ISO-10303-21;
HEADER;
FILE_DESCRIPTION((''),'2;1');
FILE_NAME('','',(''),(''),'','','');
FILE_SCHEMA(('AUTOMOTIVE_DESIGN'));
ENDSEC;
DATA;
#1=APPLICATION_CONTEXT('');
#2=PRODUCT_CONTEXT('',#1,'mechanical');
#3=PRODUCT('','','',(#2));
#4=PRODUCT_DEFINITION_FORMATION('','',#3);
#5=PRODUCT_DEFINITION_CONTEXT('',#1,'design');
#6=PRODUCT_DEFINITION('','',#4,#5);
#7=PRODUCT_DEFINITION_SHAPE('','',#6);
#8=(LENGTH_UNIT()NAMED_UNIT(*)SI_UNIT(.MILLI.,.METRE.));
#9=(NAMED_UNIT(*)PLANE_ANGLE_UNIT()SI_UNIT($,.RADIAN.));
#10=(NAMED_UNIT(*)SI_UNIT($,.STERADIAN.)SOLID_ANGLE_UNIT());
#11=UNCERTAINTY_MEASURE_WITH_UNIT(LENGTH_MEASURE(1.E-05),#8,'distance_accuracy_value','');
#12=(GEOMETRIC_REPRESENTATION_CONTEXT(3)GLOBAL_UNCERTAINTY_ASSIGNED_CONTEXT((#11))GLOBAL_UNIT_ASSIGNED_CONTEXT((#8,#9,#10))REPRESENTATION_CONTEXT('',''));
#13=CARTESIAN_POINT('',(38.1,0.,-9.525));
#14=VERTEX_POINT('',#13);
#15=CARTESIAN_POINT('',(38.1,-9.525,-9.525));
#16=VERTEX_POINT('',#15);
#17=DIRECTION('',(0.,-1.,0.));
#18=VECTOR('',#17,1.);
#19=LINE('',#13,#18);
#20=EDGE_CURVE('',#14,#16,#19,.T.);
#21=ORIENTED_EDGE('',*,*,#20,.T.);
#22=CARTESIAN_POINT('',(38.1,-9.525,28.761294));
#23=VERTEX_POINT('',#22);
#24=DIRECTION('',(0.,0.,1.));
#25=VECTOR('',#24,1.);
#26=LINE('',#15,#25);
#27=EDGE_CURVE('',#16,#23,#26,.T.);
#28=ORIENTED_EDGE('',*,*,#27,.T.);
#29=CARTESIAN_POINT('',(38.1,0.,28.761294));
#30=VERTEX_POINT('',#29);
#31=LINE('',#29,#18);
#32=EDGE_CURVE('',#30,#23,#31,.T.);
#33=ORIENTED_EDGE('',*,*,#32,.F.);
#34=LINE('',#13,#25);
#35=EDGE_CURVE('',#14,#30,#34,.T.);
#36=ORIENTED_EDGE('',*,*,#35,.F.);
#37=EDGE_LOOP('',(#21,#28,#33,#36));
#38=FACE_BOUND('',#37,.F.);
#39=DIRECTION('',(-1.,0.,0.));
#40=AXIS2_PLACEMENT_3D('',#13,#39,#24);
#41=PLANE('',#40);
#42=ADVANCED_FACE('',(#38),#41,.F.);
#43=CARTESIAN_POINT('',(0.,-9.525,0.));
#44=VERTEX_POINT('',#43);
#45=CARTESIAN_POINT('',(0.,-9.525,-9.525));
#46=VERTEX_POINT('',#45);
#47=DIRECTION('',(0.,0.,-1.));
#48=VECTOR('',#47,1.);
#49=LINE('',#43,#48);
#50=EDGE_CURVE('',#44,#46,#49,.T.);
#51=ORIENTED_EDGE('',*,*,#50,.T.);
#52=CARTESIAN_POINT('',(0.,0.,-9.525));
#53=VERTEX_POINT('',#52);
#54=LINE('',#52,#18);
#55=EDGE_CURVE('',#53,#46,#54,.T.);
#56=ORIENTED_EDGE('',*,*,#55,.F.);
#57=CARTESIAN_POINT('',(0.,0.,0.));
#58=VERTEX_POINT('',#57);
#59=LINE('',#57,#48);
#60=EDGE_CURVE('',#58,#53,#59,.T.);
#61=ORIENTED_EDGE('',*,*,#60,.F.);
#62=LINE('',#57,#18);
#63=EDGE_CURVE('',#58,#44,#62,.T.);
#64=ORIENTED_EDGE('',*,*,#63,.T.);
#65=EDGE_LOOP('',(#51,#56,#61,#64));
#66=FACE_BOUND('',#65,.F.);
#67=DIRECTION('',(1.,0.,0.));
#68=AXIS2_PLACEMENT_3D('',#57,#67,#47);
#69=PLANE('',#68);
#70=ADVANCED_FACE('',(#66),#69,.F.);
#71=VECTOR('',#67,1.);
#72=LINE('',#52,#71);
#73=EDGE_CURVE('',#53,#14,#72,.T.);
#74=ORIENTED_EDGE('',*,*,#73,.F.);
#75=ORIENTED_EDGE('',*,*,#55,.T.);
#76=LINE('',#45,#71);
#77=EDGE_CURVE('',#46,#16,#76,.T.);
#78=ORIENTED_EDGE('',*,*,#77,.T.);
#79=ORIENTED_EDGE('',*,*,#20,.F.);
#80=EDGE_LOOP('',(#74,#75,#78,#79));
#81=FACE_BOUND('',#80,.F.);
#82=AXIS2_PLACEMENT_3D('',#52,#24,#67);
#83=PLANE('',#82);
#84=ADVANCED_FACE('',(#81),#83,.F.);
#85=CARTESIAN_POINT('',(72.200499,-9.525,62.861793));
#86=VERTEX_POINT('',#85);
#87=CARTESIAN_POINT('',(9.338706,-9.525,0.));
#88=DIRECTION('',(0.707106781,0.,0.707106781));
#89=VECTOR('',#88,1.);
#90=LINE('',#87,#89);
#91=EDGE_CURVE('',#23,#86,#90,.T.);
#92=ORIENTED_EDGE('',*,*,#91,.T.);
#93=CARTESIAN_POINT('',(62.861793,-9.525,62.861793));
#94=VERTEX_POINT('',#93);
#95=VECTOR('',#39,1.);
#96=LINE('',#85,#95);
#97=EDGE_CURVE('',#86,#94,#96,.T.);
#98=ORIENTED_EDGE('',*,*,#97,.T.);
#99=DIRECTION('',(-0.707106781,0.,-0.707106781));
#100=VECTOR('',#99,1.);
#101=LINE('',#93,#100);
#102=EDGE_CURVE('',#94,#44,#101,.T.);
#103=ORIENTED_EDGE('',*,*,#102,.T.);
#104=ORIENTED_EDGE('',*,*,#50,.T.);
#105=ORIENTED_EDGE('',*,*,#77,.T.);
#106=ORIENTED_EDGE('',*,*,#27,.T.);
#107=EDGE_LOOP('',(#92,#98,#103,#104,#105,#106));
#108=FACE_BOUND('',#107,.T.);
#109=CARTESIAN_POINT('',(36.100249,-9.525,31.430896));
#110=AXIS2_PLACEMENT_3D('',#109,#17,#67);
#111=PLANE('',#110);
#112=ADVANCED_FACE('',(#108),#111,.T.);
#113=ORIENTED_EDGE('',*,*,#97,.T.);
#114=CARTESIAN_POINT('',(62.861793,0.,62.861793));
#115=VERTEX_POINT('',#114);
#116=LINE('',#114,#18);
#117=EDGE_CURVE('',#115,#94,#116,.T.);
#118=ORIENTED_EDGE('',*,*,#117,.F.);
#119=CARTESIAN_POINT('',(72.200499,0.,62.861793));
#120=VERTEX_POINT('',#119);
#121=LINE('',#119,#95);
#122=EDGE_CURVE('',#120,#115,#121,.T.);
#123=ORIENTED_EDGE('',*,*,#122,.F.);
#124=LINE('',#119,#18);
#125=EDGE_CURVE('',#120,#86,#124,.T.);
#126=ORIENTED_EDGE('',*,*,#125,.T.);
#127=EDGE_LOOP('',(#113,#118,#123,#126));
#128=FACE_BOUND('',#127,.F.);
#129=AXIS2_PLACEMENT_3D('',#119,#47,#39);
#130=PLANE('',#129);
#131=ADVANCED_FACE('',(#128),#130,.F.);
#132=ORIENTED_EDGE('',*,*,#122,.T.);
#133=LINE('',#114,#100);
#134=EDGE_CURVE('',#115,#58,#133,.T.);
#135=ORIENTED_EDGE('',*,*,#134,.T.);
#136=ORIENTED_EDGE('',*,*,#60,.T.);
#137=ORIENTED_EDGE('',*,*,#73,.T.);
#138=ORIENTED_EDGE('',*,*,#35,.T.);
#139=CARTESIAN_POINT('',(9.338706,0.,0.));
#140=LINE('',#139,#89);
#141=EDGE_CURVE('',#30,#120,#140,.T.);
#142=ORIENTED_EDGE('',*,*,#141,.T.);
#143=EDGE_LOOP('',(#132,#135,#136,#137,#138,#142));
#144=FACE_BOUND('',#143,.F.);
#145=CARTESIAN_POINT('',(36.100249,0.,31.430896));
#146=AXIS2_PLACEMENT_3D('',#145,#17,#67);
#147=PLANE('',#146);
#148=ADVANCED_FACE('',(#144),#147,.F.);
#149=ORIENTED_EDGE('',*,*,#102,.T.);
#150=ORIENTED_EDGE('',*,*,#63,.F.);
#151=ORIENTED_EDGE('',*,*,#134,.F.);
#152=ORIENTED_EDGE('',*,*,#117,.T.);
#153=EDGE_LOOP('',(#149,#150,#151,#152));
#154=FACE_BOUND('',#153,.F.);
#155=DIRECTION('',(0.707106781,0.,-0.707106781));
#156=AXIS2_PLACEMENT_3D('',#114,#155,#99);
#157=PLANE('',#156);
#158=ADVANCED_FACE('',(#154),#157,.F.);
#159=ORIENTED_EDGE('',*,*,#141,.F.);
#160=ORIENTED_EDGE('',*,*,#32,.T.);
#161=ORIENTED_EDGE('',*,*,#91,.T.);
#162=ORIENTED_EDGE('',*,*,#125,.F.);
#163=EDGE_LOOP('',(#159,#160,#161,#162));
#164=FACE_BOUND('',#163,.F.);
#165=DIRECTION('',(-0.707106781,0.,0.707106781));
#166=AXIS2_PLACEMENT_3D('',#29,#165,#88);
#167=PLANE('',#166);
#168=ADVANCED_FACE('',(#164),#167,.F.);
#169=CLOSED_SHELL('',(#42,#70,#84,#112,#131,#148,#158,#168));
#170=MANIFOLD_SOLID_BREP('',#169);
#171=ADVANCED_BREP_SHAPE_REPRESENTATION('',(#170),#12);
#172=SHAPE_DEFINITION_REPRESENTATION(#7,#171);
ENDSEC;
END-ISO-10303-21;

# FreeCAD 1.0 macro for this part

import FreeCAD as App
import Part
import Sketcher

V = App.Vector
Q = App.Units.Quantity

doc = App.newDocument("Part")
body = doc.addObject("PartDesign::Body", "Body")

sketch1 = doc.addObject("Sketcher::SketchObject", "Sketch")
body.addObject(sketch1)
sketch1.AttachmentSupport = (doc.XZ_Plane, [""])
sketch1.MapMode = "FlatFace"
sketch1.addGeometry([
    Part.LineSegment(V(63, 63, 0), V(0, 0, 0)),
    Part.LineSegment(V(0, 0, 0), V(0, -10, 0)),
    Part.LineSegment(V(0, -10, 0), V(38, -10, 0)),
    Part.LineSegment(V(38, -10, 0), V(38, 29, 0)),
    Part.LineSegment(V(38, 29, 0), V(72, 63, 0)),
    Part.LineSegment(V(72, 63, 0), V(63, 63, 0)),
], False)
sketch1.addConstraint([
    Sketcher.Constraint("Coincident", 0, 2, 1, 1),
    Sketcher.Constraint("Coincident", 1, 2, 2, 1),
    Sketcher.Constraint("Coincident", 2, 2, 3, 1),
    Sketcher.Constraint("Coincident", 3, 2, 4, 1),
    Sketcher.Constraint("Coincident", 4, 2, 5, 1),
    Sketcher.Constraint("Coincident", 5, 2, 0, 1),
    Sketcher.Constraint("Vertical", 1),
    Sketcher.Constraint("Horizontal", 2),
    Sketcher.Constraint("Vertical", 3),
    Sketcher.Constraint("Horizontal", 5),
    Sketcher.Constraint("Coincident", 0, 2, -1, 1),
    Sketcher.Constraint("Parallel", 0, 4),
    Sketcher.Constraint("DistanceX", 2, 1, 2, 2, Q("1.5 in")),
    Sketcher.Constraint("Angle", 0, Q("-135 deg")),
    Sketcher.Constraint("Distance", 0, Q("3.5 in")),
    Sketcher.Constraint("DistanceY", 1, 2, 1, 1, Q("0.375 in")),
    Sketcher.Constraint("DistanceX", -1, 1, 4, 2, 72.200499),
])
pad1 = doc.addObject("PartDesign::Pad", "Pad")
body.addObject(pad1)
pad1.Profile = sketch1
pad1.Length = Q("0.375 in")

doc.recompute()
